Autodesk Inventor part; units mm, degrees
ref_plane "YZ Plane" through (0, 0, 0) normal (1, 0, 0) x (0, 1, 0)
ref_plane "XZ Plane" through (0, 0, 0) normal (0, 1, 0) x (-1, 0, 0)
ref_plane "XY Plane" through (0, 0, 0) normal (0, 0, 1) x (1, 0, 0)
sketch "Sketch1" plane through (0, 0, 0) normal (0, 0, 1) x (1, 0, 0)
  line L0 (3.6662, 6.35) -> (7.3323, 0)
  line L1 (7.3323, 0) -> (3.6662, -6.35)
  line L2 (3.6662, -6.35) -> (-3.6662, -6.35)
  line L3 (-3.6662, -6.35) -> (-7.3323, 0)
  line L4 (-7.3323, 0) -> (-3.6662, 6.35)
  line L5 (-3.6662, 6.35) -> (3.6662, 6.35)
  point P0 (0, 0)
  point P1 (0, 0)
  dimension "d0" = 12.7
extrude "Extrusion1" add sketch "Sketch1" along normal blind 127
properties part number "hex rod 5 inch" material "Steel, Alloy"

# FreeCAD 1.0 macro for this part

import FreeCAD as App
import Part
import Sketcher

V = App.Vector
Q = App.Units.Quantity

doc = App.newDocument("Part")
body = doc.addObject("PartDesign::Body", "Body")

# Sketch on XY plane
sketch1 = body.newObject("Sketcher::SketchObject", "Sketch")
sketch1.AttachmentSupport = (doc.getObject("XY_Plane"), [""])
sketch1.MapMode = "FlatFace"
sketch1.addGeometry(Part.LineSegment(V(7, 0, 0), V(4, 6, 0)), False)
sketch1.addGeometry(Part.LineSegment(V(4, 6, 0), V(-4, 6, 0)), False)
sketch1.addGeometry(Part.LineSegment(V(-4, 6, 0), V(-7, 0, 0)), False)
sketch1.addGeometry(Part.LineSegment(V(-7, 0, 0), V(-4, -6, 0)), False)
sketch1.addGeometry(Part.LineSegment(V(-4, -6, 0), V(4, -6, 0)), False)
sketch1.addGeometry(Part.LineSegment(V(4, -6, 0), V(7, 0, 0)), False)
sketch1.addConstraint(Sketcher.Constraint("Coincident", 0, 2, 1, 1))
sketch1.addConstraint(Sketcher.Constraint("Coincident", 1, 2, 2, 1))
sketch1.addConstraint(Sketcher.Constraint("Coincident", 2, 2, 3, 1))
sketch1.addConstraint(Sketcher.Constraint("Coincident", 3, 2, 4, 1))
sketch1.addConstraint(Sketcher.Constraint("Coincident", 4, 2, 5, 1))
sketch1.addConstraint(Sketcher.Constraint("Coincident", 5, 2, 0, 1))
sketch1.addConstraint(Sketcher.Constraint("Horizontal", 1))
sketch1.addConstraint(Sketcher.Constraint("Horizontal", 4))
sketch1.addConstraint(Sketcher.Constraint("Symmetric", 0, 2, 3, 2, -1, 1))
sketch1.addConstraint(Sketcher.Constraint("Symmetric", 2, 2, 5, 2, -1, 1))
sketch1.addConstraint(Sketcher.Constraint("PointOnObject", 2, 2, -1))
sketch1.addConstraint(Sketcher.Constraint("Parallel", 2, 5))
sketch1.addConstraint(Sketcher.Constraint("Vertical", 1, 2, 3, 2))
sketch1.addConstraint(Sketcher.Constraint("DistanceY", 3, 2, 1, 2, Q("0.5 in")))
sketch1.addConstraint(Sketcher.Constraint("Angle", 0, Q("119.9995 deg")))
sketch1.addConstraint(Sketcher.Constraint("DistanceX", 2, 2, 0, 2, Q("0.433 in")))
pad1 = body.newObject("PartDesign::Pad", "Pad")
pad1.Profile = sketch1
pad1.Length = Q("5 in")

doc.recompute()
